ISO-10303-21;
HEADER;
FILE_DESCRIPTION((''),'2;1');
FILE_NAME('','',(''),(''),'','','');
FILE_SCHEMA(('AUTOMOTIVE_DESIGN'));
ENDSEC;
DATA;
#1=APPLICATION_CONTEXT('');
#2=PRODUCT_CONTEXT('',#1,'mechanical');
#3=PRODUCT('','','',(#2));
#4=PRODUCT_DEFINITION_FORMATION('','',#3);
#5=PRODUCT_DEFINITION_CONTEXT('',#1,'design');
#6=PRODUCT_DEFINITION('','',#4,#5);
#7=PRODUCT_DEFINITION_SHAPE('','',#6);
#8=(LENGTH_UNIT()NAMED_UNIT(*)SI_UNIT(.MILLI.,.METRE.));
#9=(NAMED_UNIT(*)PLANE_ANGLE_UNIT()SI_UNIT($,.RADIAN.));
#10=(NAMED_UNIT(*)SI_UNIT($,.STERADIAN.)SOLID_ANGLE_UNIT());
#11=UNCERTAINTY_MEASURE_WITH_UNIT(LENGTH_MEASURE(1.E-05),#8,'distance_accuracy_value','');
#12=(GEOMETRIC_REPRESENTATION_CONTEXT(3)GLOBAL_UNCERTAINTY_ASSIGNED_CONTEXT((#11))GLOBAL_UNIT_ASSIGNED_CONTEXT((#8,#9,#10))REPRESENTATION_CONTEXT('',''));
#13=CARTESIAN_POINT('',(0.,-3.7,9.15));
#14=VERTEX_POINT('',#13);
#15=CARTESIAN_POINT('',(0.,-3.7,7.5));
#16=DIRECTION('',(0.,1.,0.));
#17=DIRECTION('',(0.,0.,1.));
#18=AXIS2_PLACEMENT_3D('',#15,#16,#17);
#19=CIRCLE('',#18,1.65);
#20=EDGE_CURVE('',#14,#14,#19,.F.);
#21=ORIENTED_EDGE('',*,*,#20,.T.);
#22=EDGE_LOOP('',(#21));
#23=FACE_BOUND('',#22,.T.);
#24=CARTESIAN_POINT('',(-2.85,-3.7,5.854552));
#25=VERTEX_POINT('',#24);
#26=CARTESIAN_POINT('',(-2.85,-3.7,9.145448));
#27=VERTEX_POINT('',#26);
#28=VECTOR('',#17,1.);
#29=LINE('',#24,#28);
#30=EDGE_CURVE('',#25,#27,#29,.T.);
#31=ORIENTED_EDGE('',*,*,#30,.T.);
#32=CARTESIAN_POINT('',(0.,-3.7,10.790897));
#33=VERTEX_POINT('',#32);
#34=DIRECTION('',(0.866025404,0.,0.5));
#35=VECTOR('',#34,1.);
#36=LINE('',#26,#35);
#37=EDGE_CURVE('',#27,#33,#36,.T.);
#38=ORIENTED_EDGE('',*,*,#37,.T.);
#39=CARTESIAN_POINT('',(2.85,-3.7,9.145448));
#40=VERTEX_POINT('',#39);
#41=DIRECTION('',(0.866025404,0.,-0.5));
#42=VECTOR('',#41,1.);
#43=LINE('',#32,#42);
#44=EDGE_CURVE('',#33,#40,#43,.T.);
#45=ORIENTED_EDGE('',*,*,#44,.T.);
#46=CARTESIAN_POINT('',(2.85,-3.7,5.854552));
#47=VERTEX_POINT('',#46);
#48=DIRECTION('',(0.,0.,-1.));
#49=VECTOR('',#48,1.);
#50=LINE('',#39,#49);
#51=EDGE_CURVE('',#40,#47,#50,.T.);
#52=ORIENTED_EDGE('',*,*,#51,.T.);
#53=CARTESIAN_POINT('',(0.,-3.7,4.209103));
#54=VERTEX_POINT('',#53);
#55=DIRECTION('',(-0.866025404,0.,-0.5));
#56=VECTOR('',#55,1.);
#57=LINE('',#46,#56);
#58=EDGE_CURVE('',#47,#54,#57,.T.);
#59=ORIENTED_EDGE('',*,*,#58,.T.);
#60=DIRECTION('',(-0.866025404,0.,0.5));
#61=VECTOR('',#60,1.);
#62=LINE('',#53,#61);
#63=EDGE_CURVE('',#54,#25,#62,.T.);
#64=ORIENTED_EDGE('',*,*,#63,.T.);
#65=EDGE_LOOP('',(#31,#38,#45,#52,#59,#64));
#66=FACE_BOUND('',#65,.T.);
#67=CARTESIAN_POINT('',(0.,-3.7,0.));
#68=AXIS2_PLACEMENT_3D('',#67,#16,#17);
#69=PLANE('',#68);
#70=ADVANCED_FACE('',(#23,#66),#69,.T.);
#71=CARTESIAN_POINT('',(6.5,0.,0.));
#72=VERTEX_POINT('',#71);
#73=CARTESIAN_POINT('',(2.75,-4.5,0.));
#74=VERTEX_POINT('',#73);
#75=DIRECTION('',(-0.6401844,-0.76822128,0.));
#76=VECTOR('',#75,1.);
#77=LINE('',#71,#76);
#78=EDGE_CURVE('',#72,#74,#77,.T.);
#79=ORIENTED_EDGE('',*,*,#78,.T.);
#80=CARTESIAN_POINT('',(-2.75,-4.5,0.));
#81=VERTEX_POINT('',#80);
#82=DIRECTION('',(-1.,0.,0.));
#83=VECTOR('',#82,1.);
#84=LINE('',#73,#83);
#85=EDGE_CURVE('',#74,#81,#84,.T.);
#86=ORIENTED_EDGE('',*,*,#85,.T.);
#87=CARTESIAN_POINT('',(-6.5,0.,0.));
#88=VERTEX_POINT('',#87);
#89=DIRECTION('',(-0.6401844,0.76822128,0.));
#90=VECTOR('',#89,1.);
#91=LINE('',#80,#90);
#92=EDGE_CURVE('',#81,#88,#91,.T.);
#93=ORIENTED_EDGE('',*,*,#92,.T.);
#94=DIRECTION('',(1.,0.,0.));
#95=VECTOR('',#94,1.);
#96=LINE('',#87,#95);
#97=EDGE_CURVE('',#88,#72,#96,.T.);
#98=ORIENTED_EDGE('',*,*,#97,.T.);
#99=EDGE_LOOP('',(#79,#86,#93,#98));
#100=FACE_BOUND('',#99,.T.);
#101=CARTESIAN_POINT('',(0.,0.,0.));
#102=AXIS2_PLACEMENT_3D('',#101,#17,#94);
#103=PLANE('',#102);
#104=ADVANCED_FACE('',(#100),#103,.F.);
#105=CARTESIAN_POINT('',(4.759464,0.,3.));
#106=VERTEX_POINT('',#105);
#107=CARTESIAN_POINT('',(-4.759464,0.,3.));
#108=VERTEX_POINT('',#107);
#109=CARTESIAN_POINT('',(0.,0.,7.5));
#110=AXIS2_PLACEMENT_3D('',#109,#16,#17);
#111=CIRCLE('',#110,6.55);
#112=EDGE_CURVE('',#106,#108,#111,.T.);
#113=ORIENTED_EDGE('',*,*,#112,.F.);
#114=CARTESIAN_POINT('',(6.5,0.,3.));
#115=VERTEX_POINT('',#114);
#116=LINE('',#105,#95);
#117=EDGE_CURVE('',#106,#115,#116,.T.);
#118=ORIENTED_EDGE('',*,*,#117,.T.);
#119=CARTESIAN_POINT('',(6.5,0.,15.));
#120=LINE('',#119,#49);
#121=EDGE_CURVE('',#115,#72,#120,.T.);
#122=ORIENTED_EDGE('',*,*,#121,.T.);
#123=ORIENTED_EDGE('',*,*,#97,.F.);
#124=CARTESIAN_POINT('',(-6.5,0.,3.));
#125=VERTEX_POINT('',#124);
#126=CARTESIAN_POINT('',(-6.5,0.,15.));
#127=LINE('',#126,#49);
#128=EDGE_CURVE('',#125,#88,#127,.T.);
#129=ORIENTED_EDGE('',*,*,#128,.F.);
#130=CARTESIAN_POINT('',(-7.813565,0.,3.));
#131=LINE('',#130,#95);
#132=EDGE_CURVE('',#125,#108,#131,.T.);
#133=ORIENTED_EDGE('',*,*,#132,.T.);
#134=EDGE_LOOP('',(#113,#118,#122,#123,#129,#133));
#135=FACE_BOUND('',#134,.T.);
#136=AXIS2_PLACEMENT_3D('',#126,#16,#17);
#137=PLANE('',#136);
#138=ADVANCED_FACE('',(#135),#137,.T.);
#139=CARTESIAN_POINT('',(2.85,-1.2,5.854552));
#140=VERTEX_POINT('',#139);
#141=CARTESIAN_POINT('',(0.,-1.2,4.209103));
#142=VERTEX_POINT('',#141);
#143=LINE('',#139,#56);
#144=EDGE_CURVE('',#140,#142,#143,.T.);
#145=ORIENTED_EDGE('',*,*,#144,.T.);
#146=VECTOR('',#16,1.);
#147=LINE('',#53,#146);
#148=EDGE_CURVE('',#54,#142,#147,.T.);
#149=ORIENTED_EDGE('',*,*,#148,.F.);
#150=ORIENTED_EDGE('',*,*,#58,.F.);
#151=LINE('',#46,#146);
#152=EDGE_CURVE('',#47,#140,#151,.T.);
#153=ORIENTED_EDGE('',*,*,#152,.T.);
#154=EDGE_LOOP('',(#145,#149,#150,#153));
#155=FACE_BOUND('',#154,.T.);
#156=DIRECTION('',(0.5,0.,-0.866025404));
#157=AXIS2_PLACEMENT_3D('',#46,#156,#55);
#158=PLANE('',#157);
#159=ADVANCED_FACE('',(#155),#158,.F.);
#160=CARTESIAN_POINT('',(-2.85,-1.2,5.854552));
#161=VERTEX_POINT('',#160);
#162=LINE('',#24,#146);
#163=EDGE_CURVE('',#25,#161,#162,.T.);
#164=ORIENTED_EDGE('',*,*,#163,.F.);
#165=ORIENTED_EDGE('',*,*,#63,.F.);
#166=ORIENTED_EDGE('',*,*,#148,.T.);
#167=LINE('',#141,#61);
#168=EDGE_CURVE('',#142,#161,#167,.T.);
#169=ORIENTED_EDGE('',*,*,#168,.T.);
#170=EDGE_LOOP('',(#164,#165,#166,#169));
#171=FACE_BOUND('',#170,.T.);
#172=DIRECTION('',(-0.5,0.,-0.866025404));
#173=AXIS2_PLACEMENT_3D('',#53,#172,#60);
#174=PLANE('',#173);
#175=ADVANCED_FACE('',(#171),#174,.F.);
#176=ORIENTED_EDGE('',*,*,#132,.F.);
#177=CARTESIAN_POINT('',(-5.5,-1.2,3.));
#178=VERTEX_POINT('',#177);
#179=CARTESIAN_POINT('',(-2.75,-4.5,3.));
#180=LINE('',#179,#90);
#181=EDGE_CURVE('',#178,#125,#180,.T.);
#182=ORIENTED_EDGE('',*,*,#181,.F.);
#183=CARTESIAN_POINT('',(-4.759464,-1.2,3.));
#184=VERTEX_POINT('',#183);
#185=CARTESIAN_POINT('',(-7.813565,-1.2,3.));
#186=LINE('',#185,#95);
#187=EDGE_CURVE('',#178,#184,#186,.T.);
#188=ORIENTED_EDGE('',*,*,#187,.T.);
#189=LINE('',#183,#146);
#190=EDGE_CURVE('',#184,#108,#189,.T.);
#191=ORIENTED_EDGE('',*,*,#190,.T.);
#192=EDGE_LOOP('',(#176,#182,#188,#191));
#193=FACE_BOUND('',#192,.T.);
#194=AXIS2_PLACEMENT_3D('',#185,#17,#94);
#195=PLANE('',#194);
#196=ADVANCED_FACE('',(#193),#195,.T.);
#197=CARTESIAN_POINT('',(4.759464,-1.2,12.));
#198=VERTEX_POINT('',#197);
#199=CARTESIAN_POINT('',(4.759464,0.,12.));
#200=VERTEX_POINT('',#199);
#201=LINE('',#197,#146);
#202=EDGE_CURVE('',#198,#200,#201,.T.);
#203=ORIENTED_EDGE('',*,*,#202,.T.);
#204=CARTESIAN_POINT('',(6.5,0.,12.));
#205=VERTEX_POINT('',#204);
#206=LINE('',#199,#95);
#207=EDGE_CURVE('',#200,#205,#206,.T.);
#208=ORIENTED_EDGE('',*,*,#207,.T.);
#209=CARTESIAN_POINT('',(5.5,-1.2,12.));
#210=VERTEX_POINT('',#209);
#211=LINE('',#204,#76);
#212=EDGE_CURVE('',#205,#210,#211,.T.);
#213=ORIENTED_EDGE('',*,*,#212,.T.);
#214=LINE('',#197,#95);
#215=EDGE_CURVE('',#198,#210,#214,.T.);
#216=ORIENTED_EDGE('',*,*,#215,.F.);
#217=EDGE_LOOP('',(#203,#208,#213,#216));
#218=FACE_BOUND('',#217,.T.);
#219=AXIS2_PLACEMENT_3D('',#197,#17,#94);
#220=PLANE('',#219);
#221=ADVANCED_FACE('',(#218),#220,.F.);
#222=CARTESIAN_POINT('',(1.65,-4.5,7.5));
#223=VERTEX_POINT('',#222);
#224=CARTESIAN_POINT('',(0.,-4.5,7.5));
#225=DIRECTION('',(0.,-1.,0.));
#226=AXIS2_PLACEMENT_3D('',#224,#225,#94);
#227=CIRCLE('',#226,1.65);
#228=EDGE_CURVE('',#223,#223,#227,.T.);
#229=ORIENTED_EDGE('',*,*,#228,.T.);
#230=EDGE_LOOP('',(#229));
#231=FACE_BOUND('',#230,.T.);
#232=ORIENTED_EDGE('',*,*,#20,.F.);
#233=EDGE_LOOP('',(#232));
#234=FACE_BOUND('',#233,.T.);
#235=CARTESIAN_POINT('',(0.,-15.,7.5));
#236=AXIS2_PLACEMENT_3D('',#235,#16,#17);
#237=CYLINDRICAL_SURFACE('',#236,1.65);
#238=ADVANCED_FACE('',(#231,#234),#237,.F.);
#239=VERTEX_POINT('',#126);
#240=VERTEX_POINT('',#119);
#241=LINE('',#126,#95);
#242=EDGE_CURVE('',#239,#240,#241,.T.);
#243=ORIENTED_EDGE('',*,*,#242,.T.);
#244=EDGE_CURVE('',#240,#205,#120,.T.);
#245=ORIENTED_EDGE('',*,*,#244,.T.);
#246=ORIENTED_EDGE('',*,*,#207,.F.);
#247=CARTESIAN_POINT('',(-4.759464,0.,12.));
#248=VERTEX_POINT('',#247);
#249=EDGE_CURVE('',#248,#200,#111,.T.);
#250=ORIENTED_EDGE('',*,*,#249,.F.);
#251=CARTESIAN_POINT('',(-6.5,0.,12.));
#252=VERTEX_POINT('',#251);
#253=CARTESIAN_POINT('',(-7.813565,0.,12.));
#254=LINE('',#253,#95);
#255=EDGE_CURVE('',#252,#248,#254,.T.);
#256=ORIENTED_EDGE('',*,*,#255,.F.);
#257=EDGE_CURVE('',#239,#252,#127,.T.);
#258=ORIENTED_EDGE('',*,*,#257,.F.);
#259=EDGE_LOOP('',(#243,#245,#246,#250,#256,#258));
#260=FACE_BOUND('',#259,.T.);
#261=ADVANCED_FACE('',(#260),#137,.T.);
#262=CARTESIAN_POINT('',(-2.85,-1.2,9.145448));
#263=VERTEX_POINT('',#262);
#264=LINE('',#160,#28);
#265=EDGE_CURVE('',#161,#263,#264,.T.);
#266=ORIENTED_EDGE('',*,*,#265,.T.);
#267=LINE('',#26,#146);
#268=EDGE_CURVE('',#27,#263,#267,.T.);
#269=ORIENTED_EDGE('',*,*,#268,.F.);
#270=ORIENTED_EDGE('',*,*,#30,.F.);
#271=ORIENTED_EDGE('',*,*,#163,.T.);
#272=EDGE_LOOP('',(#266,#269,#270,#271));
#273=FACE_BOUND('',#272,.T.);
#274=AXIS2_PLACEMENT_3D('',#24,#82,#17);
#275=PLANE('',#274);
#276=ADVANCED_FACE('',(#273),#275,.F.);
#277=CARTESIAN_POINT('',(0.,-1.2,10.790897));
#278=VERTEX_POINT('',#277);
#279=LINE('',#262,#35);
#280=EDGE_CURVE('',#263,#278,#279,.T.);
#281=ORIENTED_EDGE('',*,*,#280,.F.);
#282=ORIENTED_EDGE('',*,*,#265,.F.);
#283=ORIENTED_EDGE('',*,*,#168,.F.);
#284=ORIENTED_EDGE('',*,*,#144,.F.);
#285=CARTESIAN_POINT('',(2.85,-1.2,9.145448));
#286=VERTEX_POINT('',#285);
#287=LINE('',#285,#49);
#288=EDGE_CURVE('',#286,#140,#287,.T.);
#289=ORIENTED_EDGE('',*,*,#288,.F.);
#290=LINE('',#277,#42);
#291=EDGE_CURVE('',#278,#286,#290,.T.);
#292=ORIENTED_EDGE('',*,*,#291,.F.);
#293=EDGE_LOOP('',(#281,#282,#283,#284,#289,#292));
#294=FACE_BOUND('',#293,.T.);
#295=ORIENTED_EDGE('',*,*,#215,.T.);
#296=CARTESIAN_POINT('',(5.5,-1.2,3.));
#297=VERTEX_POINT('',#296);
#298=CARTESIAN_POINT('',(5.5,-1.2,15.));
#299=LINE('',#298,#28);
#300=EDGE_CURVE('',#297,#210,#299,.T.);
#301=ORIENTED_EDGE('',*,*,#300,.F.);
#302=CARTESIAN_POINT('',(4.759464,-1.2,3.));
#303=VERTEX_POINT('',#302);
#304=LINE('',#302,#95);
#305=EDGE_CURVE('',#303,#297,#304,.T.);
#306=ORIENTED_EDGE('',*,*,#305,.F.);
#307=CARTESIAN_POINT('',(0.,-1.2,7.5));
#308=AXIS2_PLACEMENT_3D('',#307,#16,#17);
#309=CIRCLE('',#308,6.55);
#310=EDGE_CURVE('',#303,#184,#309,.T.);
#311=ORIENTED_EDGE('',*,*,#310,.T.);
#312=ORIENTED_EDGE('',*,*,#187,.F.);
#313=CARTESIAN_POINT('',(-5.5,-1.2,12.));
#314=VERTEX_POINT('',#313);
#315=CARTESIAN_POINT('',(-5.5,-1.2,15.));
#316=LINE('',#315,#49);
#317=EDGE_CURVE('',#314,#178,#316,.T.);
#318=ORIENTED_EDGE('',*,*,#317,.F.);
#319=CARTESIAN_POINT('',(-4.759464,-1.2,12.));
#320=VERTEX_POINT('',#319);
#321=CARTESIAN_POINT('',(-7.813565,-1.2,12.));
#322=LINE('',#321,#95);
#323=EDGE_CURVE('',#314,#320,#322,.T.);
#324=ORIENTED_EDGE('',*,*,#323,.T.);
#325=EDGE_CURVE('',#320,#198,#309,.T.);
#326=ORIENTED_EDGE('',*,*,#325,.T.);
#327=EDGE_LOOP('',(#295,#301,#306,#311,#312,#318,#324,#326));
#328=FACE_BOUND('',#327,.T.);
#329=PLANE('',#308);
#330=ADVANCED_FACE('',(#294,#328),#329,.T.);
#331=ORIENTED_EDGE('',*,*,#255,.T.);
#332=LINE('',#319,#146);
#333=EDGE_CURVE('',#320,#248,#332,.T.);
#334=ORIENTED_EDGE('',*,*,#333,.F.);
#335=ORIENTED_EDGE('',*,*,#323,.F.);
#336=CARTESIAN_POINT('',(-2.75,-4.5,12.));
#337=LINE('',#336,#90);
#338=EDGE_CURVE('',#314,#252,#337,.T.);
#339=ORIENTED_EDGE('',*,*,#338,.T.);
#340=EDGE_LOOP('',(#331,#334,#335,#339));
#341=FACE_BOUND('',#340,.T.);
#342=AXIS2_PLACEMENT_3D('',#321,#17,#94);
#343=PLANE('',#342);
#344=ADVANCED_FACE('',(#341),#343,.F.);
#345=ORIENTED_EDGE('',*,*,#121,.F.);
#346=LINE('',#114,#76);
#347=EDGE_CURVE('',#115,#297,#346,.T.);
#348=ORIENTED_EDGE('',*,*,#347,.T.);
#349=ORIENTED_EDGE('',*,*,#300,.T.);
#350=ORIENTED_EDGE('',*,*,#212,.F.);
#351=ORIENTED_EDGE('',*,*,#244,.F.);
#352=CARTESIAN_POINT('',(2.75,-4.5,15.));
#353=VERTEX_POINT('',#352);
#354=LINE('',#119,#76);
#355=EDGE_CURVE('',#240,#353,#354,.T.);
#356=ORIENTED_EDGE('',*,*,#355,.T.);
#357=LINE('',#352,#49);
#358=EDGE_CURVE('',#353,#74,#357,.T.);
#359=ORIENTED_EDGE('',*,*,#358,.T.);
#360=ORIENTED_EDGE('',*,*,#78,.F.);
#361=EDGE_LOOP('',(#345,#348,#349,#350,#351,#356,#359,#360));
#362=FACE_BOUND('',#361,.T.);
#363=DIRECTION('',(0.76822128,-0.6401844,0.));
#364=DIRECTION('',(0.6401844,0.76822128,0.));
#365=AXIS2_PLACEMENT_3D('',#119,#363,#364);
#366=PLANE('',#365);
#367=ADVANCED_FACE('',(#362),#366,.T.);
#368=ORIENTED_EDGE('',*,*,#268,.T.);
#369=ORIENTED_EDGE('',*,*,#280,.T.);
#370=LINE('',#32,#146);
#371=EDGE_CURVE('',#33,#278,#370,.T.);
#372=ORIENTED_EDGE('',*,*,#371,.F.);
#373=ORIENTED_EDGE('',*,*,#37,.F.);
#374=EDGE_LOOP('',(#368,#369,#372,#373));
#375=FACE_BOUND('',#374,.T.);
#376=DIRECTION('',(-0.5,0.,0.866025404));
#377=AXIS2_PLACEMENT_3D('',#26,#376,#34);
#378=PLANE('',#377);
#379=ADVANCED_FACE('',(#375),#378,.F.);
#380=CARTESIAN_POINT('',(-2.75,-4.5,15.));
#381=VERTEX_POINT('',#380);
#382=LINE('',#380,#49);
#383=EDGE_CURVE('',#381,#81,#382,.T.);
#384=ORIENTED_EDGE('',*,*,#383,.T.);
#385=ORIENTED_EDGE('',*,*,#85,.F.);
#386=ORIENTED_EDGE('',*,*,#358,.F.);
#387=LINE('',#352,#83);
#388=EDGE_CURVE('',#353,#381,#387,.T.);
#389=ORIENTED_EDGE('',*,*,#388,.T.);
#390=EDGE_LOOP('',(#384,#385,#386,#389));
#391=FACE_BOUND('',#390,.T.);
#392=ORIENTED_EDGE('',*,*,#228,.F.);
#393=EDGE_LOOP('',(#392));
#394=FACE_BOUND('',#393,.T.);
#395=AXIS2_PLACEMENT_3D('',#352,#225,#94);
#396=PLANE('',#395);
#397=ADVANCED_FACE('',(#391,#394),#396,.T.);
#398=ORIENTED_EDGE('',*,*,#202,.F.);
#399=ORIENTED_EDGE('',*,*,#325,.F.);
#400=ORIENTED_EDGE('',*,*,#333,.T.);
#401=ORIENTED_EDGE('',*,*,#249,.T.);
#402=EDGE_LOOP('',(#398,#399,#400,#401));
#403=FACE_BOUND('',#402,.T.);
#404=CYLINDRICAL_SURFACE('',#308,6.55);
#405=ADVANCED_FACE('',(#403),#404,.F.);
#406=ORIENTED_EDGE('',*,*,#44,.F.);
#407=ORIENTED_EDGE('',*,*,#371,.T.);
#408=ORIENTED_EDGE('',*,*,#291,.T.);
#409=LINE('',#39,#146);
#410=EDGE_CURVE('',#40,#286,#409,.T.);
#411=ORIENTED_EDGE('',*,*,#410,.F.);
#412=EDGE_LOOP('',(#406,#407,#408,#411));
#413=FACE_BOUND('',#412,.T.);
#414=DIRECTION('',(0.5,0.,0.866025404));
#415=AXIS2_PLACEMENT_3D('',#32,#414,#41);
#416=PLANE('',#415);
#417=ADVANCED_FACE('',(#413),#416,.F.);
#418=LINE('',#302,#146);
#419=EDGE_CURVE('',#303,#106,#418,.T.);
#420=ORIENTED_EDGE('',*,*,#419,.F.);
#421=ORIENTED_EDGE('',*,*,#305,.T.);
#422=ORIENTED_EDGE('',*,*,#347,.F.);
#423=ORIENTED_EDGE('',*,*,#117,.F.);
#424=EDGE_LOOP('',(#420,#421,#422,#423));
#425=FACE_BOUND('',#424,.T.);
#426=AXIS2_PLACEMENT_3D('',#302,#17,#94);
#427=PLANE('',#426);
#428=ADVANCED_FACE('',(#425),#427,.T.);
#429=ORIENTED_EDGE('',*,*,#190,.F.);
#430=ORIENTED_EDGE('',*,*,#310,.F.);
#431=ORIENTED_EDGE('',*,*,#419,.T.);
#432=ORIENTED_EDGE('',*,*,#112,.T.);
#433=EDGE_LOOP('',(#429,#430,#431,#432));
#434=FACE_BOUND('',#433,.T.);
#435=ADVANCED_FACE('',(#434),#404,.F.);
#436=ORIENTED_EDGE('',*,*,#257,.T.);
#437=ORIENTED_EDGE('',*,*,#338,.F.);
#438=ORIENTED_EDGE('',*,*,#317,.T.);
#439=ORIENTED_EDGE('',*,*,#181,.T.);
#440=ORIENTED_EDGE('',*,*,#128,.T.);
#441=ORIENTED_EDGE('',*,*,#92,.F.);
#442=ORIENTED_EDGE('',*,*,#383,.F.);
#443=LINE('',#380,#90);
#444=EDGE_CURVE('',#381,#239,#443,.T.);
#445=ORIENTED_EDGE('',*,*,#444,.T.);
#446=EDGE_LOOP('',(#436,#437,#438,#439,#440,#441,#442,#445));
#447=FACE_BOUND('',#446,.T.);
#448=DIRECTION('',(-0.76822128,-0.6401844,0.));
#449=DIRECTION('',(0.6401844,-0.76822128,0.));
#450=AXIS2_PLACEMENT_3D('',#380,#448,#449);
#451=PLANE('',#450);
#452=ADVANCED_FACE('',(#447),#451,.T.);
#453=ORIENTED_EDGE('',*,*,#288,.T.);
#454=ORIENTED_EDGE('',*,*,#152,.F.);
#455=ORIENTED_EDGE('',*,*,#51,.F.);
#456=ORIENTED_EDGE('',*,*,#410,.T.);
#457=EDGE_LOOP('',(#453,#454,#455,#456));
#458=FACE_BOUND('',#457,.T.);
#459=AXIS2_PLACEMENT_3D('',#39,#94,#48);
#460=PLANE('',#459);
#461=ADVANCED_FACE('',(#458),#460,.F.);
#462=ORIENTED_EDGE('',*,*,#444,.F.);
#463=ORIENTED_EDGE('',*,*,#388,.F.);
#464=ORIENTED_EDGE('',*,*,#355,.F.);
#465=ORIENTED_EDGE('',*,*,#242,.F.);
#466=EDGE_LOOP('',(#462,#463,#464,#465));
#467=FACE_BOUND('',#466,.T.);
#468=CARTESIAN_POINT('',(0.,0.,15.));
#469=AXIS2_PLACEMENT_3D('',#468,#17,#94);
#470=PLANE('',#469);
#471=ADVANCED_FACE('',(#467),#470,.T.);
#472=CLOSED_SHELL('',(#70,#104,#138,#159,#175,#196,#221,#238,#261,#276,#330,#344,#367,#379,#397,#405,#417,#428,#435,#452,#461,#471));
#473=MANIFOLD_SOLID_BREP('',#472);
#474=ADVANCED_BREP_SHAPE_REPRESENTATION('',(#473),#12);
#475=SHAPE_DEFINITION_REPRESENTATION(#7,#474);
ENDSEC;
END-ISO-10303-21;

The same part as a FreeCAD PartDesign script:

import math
import FreeCAD as App
import Part
import Sketcher
Q = App.Units.Quantity


def add_polygon(sketch, points):
    """Adds a closed chain of lines whose ends are joined by coincident constraints."""
    first, n = sketch.GeometryCount, len(points)
    for a, b in zip(points, points[1:] + points[:1]):
        sketch.addGeometry(Part.LineSegment(App.Vector(*a, 0), App.Vector(*b, 0)), False)
    for i in range(n):
        sketch.addConstraint(Sketcher.Constraint("Coincident", first + i, 2, first + (i + 1) % n, 1))

doc = App.newDocument("Part")
body = doc.addObject("PartDesign::Body", "Body")

sketch1 = body.newObject("Sketcher::SketchObject", "Sketch")
sketch1.AttachmentSupport = (doc.getObject("XY_Plane"), [""])
sketch1.MapMode = "FlatFace"
add_polygon(sketch1, [(6, 0), (-6, 0), (-3, -4), (3, -4)])
sketch1.addConstraint([
    Sketcher.Constraint("Horizontal", 0),
    Sketcher.Constraint("Horizontal", 2),
    Sketcher.Constraint("Symmetric", 0, 2, 3, 2, -1, 1),
    Sketcher.Constraint("Equal", 1, 3),
    Sketcher.Constraint("DistanceX", 0, 2, 0, 1, Q("13 mm")),
    Sketcher.Constraint("DistanceX", 2, 1, 2, 2, Q("5.5 mm")),
    Sketcher.Constraint("DistanceY", 1, 2, -1, 1, Q("4.5 mm")),
])
pad1 = body.newObject("PartDesign::Pad", "Pad")
pad1.Profile = sketch1
pad1.Length = 15

sketch2 = body.newObject("Sketcher::SketchObject", "Sketch001")
sketch2.AttachmentSupport = (doc.getObject("XZ_Plane"), [""])
sketch2.MapMode = "FlatFace"
sketch2.addGeometry(Part.Circle(App.Vector(0, 7.5, 0), App.Vector(0, 0, 1), 1.6), False)
sketch2.addConstraint([
    Sketcher.Constraint("PointOnObject", 0, 3, -2),
    Sketcher.Constraint("Diameter", 0, Q("3.3 mm")),
    Sketcher.Constraint("DistanceY", -1, 1, 0, 3, Q("7.5 mm")),
])
pocket1 = body.newObject("PartDesign::Pocket", "Pocket")
pocket1.Profile = sketch2
pocket1.Length = 15
pocket1.Reversed = True

sketch3 = body.newObject("Sketcher::SketchObject", "Sketch002")
sketch3.AttachmentSupport = (doc.getObject("XZ_Plane"), [""])
sketch3.MapMode = "FlatFace"
sketch3.addGeometry([
    Part.LineSegment(App.Vector(7.8, 3, 0), App.Vector(4.8, 3, 0)),
    Part.ArcOfCircle(Part.Circle(App.Vector(0, 7.5, 0), App.Vector(0, 0, 1), 6.6), math.radians(-137), math.radians(-43)),
    Part.LineSegment(App.Vector(-4.8, 3, 0), App.Vector(-7.8, 3, 0)),
    Part.LineSegment(App.Vector(-7.8, 3, 0), App.Vector(-7.8, 12, 0)),
    Part.LineSegment(App.Vector(-7.8, 12, 0), App.Vector(-4.8, 12, 0)),
    Part.ArcOfCircle(Part.Circle(App.Vector(0, 7.5, 0), App.Vector(0, 0, 1), 6.6), math.radians(43), math.radians(137)),
    Part.LineSegment(App.Vector(4.8, 12, 0), App.Vector(7.8, 12, 0)),
    Part.LineSegment(App.Vector(7.8, 12, 0), App.Vector(7.8, 3, 0)),
], False)
sketch3.addConstraint([
    Sketcher.Constraint("Coincident", 0, 2, 1, 2),
    Sketcher.Constraint("Coincident", 1, 1, 2, 1),
    Sketcher.Constraint("Coincident", 2, 2, 3, 1),
    Sketcher.Constraint("Coincident", 3, 2, 4, 1),
    Sketcher.Constraint("Coincident", 4, 2, 5, 2),
    Sketcher.Constraint("Coincident", 5, 1, 6, 1),
    Sketcher.Constraint("Coincident", 6, 2, 7, 1),
    Sketcher.Constraint("Coincident", 7, 2, 0, 1),
    Sketcher.Constraint("Horizontal", 0),
    Sketcher.Constraint("Horizontal", 2),
    Sketcher.Constraint("Vertical", 3),
    Sketcher.Constraint("Horizontal", 4),
    Sketcher.Constraint("Horizontal", 6),
    Sketcher.Constraint("Vertical", 7),
    Sketcher.Constraint("Coincident", 5, 3, 1, 3),
    Sketcher.Constraint("Equal", 1, 5),
    Sketcher.Constraint("Symmetric", 0, 2, 1, 1, -2),
    Sketcher.Constraint("Symmetric", 3, 2, 6, 2, -2),
    Sketcher.Constraint("Vertical", 1, 1, 4, 2),
    Sketcher.Constraint("DistanceY", 3, 1, 3, 2, Q("9 mm")),
    Sketcher.Constraint("Radius", 1, Q("6.55 mm")),
    Sketcher.Constraint("DistanceY", -1, 1, 0, 2, Q("3 mm")),
    Sketcher.Constraint("DistanceX", 0, 2, 0, 1, Q("3.054101 mm")),
])
pocket2 = body.newObject("PartDesign::Pocket", "Pocket001")
pocket2.Profile = sketch3
pocket2.Length = 1.2
pocket2.Reversed = True

sketch4 = body.newObject("Sketcher::SketchObject", "Sketch003")
sketch4.AttachmentSupport = (doc.getObject("XZ_Plane"), [""])
sketch4.MapMode = "FlatFace"
sketch4.AttachmentOffset = App.Placement(App.Vector(0, 0, 1.2), App.Rotation())
add_polygon(sketch4, [(0, 4.2), (-2.9, 5.9), (-2.9, 9.1), (0, 10.8), (2.9, 9.1), (2.9, 5.9)])
sketch4.addConstraint([
    Sketcher.Constraint("Vertical", 1),
    Sketcher.Constraint("Vertical", 4),
    Sketcher.Constraint("Symmetric", 1, 2, 3, 2, -2),
    Sketcher.Constraint("PointOnObject", 2, 2, -2),
    Sketcher.Constraint("PointOnObject", 5, 2, -2),
    Sketcher.Constraint("Parallel", 0, 3),
    Sketcher.Constraint("Parallel", 2, 5),
    Sketcher.Constraint("Angle", 0, Q("150 deg")),
    Sketcher.Constraint("DistanceX", 1, 2, 3, 2, Q("5.7 mm")),
    Sketcher.Constraint("DistanceY", 1, 1, 1, 2, Q("3.290897 mm")),
    Sketcher.Constraint("DistanceY", -1, 1, 0, 2, Q("5.854552 mm")),
])
pocket3 = body.newObject("PartDesign::Pocket", "Pocket002")
pocket3.Profile = sketch4
pocket3.Length = 2.5
pocket3.Reversed = True

doc.recompute()
